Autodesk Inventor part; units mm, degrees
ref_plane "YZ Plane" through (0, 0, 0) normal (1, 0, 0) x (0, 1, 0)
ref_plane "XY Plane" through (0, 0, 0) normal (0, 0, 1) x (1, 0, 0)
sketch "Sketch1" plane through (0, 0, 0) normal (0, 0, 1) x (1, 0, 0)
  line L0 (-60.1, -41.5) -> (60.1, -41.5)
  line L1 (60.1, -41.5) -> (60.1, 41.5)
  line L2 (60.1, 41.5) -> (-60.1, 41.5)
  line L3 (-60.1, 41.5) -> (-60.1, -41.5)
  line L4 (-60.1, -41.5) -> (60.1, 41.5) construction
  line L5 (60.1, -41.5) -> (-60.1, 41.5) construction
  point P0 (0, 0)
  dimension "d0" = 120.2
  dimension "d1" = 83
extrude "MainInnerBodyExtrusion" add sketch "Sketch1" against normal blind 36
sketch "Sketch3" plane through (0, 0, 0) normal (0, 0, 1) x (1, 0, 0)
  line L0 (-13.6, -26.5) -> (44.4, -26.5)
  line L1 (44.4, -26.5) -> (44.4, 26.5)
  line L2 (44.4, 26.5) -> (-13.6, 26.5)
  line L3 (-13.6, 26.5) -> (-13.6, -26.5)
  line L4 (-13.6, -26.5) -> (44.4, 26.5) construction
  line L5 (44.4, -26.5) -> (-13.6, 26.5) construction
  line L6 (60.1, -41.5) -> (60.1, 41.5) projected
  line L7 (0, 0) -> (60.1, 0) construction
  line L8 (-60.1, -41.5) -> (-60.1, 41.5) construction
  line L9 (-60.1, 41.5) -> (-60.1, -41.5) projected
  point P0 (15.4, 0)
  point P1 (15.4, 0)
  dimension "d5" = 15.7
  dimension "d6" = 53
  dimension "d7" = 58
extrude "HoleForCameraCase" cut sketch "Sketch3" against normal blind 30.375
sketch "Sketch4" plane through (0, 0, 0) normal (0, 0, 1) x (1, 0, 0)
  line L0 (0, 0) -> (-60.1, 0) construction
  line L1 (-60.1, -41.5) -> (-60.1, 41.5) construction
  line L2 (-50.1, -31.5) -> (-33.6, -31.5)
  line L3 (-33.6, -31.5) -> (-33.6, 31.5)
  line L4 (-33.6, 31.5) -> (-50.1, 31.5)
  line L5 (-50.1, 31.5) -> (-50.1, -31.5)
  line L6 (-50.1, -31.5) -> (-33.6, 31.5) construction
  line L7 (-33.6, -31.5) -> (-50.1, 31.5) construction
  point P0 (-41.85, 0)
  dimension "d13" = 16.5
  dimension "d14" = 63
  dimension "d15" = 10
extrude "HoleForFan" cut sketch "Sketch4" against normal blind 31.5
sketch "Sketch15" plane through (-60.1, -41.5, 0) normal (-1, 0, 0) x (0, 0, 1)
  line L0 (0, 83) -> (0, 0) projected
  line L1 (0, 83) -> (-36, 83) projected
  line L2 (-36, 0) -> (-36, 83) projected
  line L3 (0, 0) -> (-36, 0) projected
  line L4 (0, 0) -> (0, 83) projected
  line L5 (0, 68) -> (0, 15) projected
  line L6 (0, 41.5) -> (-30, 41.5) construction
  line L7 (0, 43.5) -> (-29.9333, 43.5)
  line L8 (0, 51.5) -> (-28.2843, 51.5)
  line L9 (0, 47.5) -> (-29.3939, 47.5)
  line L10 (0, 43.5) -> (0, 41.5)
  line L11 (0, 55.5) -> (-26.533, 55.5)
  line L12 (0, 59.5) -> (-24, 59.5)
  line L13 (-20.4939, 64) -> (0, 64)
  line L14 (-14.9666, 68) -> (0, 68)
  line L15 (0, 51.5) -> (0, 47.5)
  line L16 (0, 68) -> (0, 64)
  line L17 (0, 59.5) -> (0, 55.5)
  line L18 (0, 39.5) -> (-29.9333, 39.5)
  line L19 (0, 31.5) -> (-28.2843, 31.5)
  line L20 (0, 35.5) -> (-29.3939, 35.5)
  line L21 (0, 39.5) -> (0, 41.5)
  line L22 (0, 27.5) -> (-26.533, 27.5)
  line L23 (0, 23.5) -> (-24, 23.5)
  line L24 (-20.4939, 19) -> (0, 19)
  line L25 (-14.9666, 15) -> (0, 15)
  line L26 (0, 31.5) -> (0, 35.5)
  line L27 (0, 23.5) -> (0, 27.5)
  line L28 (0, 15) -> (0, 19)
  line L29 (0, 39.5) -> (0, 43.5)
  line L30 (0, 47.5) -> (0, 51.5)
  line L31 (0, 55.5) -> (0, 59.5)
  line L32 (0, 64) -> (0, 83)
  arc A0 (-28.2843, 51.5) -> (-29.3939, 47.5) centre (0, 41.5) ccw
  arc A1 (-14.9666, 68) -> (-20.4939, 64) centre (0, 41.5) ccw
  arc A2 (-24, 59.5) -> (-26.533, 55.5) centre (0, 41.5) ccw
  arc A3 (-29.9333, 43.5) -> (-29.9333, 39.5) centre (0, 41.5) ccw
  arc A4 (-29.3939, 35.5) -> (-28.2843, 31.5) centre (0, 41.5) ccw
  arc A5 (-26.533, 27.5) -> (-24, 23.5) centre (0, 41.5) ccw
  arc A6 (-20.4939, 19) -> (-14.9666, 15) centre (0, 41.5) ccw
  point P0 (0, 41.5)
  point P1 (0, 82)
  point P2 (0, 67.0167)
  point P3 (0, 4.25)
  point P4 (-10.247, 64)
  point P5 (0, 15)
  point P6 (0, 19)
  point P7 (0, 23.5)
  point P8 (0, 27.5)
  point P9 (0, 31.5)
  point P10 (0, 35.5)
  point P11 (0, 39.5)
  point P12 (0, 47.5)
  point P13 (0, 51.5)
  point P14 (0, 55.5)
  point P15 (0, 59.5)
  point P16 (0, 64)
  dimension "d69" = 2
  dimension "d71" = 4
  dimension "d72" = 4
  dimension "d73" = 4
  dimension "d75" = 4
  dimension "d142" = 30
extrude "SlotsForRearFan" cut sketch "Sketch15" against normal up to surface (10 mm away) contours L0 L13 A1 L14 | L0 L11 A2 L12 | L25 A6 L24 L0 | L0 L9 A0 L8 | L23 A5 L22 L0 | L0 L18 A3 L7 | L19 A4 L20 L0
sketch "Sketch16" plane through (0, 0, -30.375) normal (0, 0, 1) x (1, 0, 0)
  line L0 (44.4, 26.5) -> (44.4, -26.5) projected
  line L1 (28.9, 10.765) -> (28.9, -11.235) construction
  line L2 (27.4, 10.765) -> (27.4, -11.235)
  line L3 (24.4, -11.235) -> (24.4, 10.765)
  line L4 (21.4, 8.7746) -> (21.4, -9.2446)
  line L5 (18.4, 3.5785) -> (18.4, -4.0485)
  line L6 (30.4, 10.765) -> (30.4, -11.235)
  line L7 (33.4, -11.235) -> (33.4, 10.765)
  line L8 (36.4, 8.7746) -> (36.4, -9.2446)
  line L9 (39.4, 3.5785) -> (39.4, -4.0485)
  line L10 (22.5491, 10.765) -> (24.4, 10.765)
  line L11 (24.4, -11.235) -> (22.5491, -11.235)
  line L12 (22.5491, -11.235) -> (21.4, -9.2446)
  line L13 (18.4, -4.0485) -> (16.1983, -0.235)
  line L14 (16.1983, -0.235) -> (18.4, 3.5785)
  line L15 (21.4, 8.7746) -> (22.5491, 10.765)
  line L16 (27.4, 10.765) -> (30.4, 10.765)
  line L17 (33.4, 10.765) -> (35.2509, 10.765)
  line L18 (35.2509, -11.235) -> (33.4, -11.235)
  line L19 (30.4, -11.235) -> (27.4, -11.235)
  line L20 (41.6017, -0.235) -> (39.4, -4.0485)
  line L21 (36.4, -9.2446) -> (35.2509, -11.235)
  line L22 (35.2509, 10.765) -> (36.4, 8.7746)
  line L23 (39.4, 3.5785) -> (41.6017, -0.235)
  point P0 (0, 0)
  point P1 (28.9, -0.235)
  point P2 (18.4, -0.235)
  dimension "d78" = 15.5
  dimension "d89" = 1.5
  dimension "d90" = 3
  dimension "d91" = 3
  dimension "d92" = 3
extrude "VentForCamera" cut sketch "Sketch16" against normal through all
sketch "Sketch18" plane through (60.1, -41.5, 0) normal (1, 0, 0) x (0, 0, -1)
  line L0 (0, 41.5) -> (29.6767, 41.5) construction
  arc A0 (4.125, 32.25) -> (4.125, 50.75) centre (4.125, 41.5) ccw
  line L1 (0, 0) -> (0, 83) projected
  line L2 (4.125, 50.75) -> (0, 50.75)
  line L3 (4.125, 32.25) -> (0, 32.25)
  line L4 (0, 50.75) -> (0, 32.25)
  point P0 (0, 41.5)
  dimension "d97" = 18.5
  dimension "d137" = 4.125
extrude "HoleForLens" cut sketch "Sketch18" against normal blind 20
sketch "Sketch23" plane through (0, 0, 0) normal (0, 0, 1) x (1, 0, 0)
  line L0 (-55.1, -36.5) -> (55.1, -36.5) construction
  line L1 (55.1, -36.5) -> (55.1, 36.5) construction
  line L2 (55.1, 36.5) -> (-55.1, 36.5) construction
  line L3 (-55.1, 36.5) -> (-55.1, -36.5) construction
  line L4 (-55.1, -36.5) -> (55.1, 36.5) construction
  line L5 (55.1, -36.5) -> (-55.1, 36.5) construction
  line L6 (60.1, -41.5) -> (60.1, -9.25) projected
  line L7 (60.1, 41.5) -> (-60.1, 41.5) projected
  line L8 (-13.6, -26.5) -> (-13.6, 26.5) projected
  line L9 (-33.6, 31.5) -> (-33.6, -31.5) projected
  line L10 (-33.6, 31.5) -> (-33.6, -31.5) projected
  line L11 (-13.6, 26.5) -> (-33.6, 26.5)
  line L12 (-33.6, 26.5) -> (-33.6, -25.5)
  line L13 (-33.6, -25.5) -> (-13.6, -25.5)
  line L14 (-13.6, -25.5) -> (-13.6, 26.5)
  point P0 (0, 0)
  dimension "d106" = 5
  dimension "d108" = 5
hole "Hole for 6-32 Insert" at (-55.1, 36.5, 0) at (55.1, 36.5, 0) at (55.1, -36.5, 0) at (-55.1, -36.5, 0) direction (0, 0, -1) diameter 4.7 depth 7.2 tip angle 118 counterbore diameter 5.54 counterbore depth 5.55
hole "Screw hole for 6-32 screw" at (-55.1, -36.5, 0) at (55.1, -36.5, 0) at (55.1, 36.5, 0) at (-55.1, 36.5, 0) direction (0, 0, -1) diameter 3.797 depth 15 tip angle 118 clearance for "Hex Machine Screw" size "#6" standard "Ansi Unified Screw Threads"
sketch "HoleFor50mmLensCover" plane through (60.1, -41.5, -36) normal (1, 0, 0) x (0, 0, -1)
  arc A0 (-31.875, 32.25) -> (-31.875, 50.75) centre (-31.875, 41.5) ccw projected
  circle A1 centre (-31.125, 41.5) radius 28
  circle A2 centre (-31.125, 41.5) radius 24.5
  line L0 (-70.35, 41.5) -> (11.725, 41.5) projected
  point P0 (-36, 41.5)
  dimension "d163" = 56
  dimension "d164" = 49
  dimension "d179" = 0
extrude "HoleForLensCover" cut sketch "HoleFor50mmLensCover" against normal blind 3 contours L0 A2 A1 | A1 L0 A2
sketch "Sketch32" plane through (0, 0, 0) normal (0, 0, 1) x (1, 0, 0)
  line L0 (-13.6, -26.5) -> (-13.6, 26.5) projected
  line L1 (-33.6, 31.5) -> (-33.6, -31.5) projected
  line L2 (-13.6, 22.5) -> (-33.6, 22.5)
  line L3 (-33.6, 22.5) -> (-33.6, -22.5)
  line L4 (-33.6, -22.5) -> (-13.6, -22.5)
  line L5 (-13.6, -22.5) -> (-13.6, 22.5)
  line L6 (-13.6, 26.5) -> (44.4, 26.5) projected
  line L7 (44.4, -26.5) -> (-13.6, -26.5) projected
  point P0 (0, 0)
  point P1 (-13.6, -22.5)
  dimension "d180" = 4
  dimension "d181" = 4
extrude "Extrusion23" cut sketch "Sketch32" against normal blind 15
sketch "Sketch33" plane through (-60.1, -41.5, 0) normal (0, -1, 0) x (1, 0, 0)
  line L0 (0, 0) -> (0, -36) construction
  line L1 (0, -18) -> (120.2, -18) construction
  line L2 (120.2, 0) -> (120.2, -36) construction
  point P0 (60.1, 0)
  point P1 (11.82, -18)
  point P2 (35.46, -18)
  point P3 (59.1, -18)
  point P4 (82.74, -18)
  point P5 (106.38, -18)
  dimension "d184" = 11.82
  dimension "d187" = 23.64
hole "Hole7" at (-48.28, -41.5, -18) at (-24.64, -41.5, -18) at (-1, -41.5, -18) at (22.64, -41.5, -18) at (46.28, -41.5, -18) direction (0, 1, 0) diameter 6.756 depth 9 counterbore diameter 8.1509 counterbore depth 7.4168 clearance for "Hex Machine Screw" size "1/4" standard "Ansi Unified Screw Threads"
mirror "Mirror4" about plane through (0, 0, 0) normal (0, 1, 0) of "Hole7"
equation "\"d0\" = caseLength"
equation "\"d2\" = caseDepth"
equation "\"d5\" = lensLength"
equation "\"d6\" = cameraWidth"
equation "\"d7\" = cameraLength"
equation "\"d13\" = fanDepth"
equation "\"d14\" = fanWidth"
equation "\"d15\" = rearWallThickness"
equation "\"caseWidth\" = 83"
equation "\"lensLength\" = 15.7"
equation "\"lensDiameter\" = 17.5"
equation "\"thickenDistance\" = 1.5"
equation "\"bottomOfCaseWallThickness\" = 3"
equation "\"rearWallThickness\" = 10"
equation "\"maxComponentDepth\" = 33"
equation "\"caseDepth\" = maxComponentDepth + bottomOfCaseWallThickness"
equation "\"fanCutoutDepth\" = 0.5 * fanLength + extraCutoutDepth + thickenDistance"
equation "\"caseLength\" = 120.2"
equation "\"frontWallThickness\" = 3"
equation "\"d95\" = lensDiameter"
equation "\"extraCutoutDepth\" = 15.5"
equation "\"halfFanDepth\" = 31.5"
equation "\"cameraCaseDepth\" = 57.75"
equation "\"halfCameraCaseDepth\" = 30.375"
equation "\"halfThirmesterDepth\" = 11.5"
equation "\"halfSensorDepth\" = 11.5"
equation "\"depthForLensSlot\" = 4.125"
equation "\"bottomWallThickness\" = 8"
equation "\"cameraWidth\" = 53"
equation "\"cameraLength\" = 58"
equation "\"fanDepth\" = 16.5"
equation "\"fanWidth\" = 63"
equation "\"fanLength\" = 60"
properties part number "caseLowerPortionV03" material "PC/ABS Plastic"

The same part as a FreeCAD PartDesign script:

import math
import FreeCAD as App
import Part
import Sketcher

V = App.Vector
Q = App.Units.Quantity

doc = App.newDocument("Part")
body = doc.addObject("PartDesign::Body", "Body")

# Sketch on XY plane
sketch1 = body.newObject("Sketcher::SketchObject", "Sketch")
sketch1.AttachmentSupport = (doc.getObject("XY_Plane"), [""])
sketch1.MapMode = "FlatFace"
sketch1.addGeometry(Part.LineSegment(V(-60.1, 41.5, 0), V(-60.1, -41.5, 0)), False)
sketch1.addGeometry(Part.LineSegment(V(-60.1, -41.5, 0), V(60.1, -41.5, 0)), False)
sketch1.addGeometry(Part.LineSegment(V(60.1, -41.5, 0), V(60.1, 41.5, 0)), False)
sketch1.addGeometry(Part.LineSegment(V(60.1, 41.5, 0), V(-60.1, 41.5, 0)), False)
sketch1.addConstraint(Sketcher.Constraint("Coincident", 0, 2, 1, 1))
sketch1.addConstraint(Sketcher.Constraint("Coincident", 1, 2, 2, 1))
sketch1.addConstraint(Sketcher.Constraint("Coincident", 2, 2, 3, 1))
sketch1.addConstraint(Sketcher.Constraint("Coincident", 3, 2, 0, 1))
sketch1.addConstraint(Sketcher.Constraint("Vertical", 0))
sketch1.addConstraint(Sketcher.Constraint("Horizontal", 1))
sketch1.addConstraint(Sketcher.Constraint("Vertical", 2))
sketch1.addConstraint(Sketcher.Constraint("Horizontal", 3))
sketch1.addConstraint(Sketcher.Constraint("Symmetric", 0, 2, 2, 2, -1, 1))
sketch1.addConstraint(Sketcher.Constraint("DistanceY", 0, 2, 0, 1, Q("83 mm")))
sketch1.addConstraint(Sketcher.Constraint("DistanceX", 1, 1, 1, 2, Q("120.2 mm")))
pad1 = body.newObject("PartDesign::Pad", "Pad")
pad1.Profile = sketch1
pad1.Length = 36
pad1.Reversed = True

# Sketch on XY plane
sketch2 = body.newObject("Sketcher::SketchObject", "Sketch001")
sketch2.AttachmentSupport = (doc.getObject("XY_Plane"), [""])
sketch2.MapMode = "FlatFace"
sketch2.addGeometry(Part.LineSegment(V(-13.6, 26.5, 0), V(-13.6, -26.5, 0)), False)
sketch2.addGeometry(Part.LineSegment(V(-13.6, -26.5, 0), V(44.4, -26.5, 0)), False)
sketch2.addGeometry(Part.LineSegment(V(44.4, -26.5, 0), V(44.4, 26.5, 0)), False)
sketch2.addGeometry(Part.LineSegment(V(44.4, 26.5, 0), V(-13.6, 26.5, 0)), False)
sketch2.addConstraint(Sketcher.Constraint("Coincident", 0, 2, 1, 1))
sketch2.addConstraint(Sketcher.Constraint("Coincident", 1, 2, 2, 1))
sketch2.addConstraint(Sketcher.Constraint("Coincident", 2, 2, 3, 1))
sketch2.addConstraint(Sketcher.Constraint("Coincident", 3, 2, 0, 1))
sketch2.addConstraint(Sketcher.Constraint("Vertical", 0))
sketch2.addConstraint(Sketcher.Constraint("Horizontal", 1))
sketch2.addConstraint(Sketcher.Constraint("Vertical", 2))
sketch2.addConstraint(Sketcher.Constraint("Horizontal", 3))
sketch2.addConstraint(Sketcher.Constraint("DistanceX", 1, 1, 1, 2, Q("58 mm")))
sketch2.addConstraint(Sketcher.Constraint("DistanceY", 0, 2, 0, 1, Q("53 mm")))
sketch2.addConstraint(Sketcher.Constraint("DistanceX", 0, 2, -1, 1, Q("13.6 mm")))
sketch2.addConstraint(Sketcher.Constraint("DistanceY", 0, 2, -1, 1, Q("26.5 mm")))
pocket1 = body.newObject("PartDesign::Pocket", "Pocket")
pocket1.Profile = sketch2
pocket1.Length = 30.375

# Sketch on XY plane
sketch3 = body.newObject("Sketcher::SketchObject", "Sketch002")
sketch3.AttachmentSupport = (doc.getObject("XY_Plane"), [""])
sketch3.MapMode = "FlatFace"
sketch3.addGeometry(Part.LineSegment(V(-50.1, 31.5, 0), V(-50.1, -31.5, 0)), False)
sketch3.addGeometry(Part.LineSegment(V(-50.1, -31.5, 0), V(-33.6, -31.5, 0)), False)
sketch3.addGeometry(Part.LineSegment(V(-33.6, -31.5, 0), V(-33.6, 31.5, 0)), False)
sketch3.addGeometry(Part.LineSegment(V(-33.6, 31.5, 0), V(-50.1, 31.5, 0)), False)
sketch3.addConstraint(Sketcher.Constraint("Coincident", 0, 2, 1, 1))
sketch3.addConstraint(Sketcher.Constraint("Coincident", 1, 2, 2, 1))
sketch3.addConstraint(Sketcher.Constraint("Coincident", 2, 2, 3, 1))
sketch3.addConstraint(Sketcher.Constraint("Coincident", 3, 2, 0, 1))
sketch3.addConstraint(Sketcher.Constraint("Vertical", 0))
sketch3.addConstraint(Sketcher.Constraint("Horizontal", 1))
sketch3.addConstraint(Sketcher.Constraint("Vertical", 2))
sketch3.addConstraint(Sketcher.Constraint("Horizontal", 3))
sketch3.addConstraint(Sketcher.Constraint("DistanceY", 0, 2, 0, 1, Q("63 mm")))
sketch3.addConstraint(Sketcher.Constraint("DistanceX", 1, 1, 1, 2, Q("16.5 mm")))
sketch3.addConstraint(Sketcher.Constraint("DistanceX", 0, 2, -1, 1, Q("50.1 mm")))
sketch3.addConstraint(Sketcher.Constraint("DistanceY", 0, 2, -1, 1, Q("31.5 mm")))
pocket2 = body.newObject("PartDesign::Pocket", "Pocket001")
pocket2.Profile = sketch3
pocket2.Length = 31.5

# Sketch on YZ plane
sketch4 = body.newObject("Sketcher::SketchObject", "Sketch003")
sketch4.AttachmentSupport = (doc.getObject("YZ_Plane"), [""])
sketch4.MapMode = "FlatFace"
sketch4.AttachmentOffset = App.Placement(V(0, 0, -60.1), App.Rotation())
sketch4.addGeometry(Part.LineSegment(V(22.5, 0, 0), V(26.5, 0, 0)), False)
sketch4.addGeometry(Part.LineSegment(V(26.5, 0, 0), V(26.5, -14.9666, 0)), False)
sketch4.addGeometry(Part.ArcOfCircle(Part.Circle(V(-0.000903, 0.000579, 0), V(0, 0, 1), 30.435412), math.radians(-42.328172), math.radians(-29.456891)), False)
sketch4.addGeometry(Part.LineSegment(V(22.5, -20.4939, 0), V(22.5, 0, 0)), False)
sketch4.addGeometry(Part.LineSegment(V(14, 0, 0), V(18, 0, 0)), False)
sketch4.addGeometry(Part.LineSegment(V(18, 0, 0), V(18, -24, 0)), False)
sketch4.addGeometry(Part.ArcOfCircle(Part.Circle(V(0, 0, 0), V(0, 0, 1), 30.000041), math.radians(-62.181862), math.radians(-53.130102)), False)
sketch4.addGeometry(Part.LineSegment(V(14, -26.533, 0), V(14, 0, 0)), False)
sketch4.addGeometry(Part.LineSegment(V(-26.5, -14.9666, 0), V(-26.5, 0, 0)), False)
sketch4.addGeometry(Part.LineSegment(V(-26.5, 0, 0), V(-22.5, 0, 0)), False)
sketch4.addGeometry(Part.LineSegment(V(-22.5, 0, 0), V(-22.5, -20.4939, 0)), False)
sketch4.addGeometry(Part.ArcOfCircle(Part.Circle(V(-0.000832, -0.000677, 0), V(0, 0, 1), 30.433284), math.radians(-150.543561), math.radians(-137.671376)), False)
sketch4.addGeometry(Part.LineSegment(V(6, 0, 0), V(10, 0, 0)), False)
sketch4.addGeometry(Part.LineSegment(V(10, 0, 0), V(10, -28.2843, 0)), False)
sketch4.addGeometry(Part.ArcOfCircle(Part.Circle(V(0, 0, 0), V(0, 0, 1), 30), math.radians(-78.46305), math.radians(-70.528798)), False)
sketch4.addGeometry(Part.LineSegment(V(6, -29.3939, 0), V(6, 0, 0)), False)
sketch4.addGeometry(Part.LineSegment(V(-18, -24, 0), V(-18, 0, 0)), False)
sketch4.addGeometry(Part.LineSegment(V(-18, 0, 0), V(-14, 0, 0)), False)
sketch4.addGeometry(Part.LineSegment(V(-14, 0, 0), V(-14, -26.533, 0)), False)
sketch4.addGeometry(Part.ArcOfCircle(Part.Circle(V(0, 0, 0), V(0, 0, 1), 30), math.radians(-126.869898), math.radians(-117.818138)), False)
sketch4.addGeometry(Part.LineSegment(V(-2, 0, 0), V(2, 0, 0)), False)
sketch4.addGeometry(Part.LineSegment(V(2, 0, 0), V(2, -29.9333, 0)), False)
sketch4.addGeometry(Part.ArcOfCircle(Part.Circle(V(0, 0, 0), V(0, 0, 1), 30.000041), math.radians(-93.822549), math.radians(-86.177451)), False)
sketch4.addGeometry(Part.LineSegment(V(-2, -29.9333, 0), V(-2, 0, 0)), False)
sketch4.addGeometry(Part.LineSegment(V(-10, -28.2843, 0), V(-10, 0, 0)), False)
sketch4.addGeometry(Part.LineSegment(V(-10, 0, 0), V(-6, 0, 0)), False)
sketch4.addGeometry(Part.LineSegment(V(-6, 0, 0), V(-6, -29.3939, 0)), False)
sketch4.addGeometry(Part.ArcOfCircle(Part.Circle(V(0, 0, 0), V(0, 0, 1), 30.000041), math.radians(-109.471202), math.radians(-101.53695)), False)
sketch4.addConstraint(Sketcher.Constraint("Coincident", 0, 2, 1, 1))
sketch4.addConstraint(Sketcher.Constraint("Coincident", 1, 2, 2, 2))
sketch4.addConstraint(Sketcher.Constraint("Coincident", 2, 1, 3, 1))
sketch4.addConstraint(Sketcher.Constraint("Coincident", 3, 2, 0, 1))
sketch4.addConstraint(Sketcher.Constraint("Coincident", 4, 2, 5, 1))
sketch4.addConstraint(Sketcher.Constraint("Coincident", 5, 2, 6, 2))
sketch4.addConstraint(Sketcher.Constraint("Coincident", 6, 1, 7, 1))
sketch4.addConstraint(Sketcher.Constraint("Coincident", 7, 2, 4, 1))
sketch4.addConstraint(Sketcher.Constraint("Coincident", 8, 2, 9, 1))
sketch4.addConstraint(Sketcher.Constraint("Coincident", 9, 2, 10, 1))
sketch4.addConstraint(Sketcher.Constraint("Coincident", 10, 2, 11, 2))
sketch4.addConstraint(Sketcher.Constraint("Coincident", 11, 1, 8, 1))
sketch4.addConstraint(Sketcher.Constraint("Coincident", 12, 2, 13, 1))
sketch4.addConstraint(Sketcher.Constraint("Coincident", 13, 2, 14, 2))
sketch4.addConstraint(Sketcher.Constraint("Coincident", 14, 1, 15, 1))
sketch4.addConstraint(Sketcher.Constraint("Coincident", 15, 2, 12, 1))
sketch4.addConstraint(Sketcher.Constraint("Coincident", 16, 2, 17, 1))
sketch4.addConstraint(Sketcher.Constraint("Coincident", 17, 2, 18, 1))
sketch4.addConstraint(Sketcher.Constraint("Coincident", 18, 2, 19, 2))
sketch4.addConstraint(Sketcher.Constraint("Coincident", 19, 1, 16, 1))
sketch4.addConstraint(Sketcher.Constraint("Coincident", 20, 2, 21, 1))
sketch4.addConstraint(Sketcher.Constraint("Coincident", 21, 2, 22, 2))
sketch4.addConstraint(Sketcher.Constraint("Coincident", 22, 1, 23, 1))
sketch4.addConstraint(Sketcher.Constraint("Coincident", 23, 2, 20, 1))
sketch4.addConstraint(Sketcher.Constraint("Coincident", 24, 2, 25, 1))
sketch4.addConstraint(Sketcher.Constraint("Coincident", 25, 2, 26, 1))
sketch4.addConstraint(Sketcher.Constraint("Coincident", 26, 2, 27, 2))
sketch4.addConstraint(Sketcher.Constraint("Coincident", 27, 1, 24, 1))
sketch4.addConstraint(Sketcher.Constraint("Horizontal", 0))
sketch4.addConstraint(Sketcher.Constraint("Vertical", 1))
sketch4.addConstraint(Sketcher.Constraint("Vertical", 3))
sketch4.addConstraint(Sketcher.Constraint("Horizontal", 4))
sketch4.addConstraint(Sketcher.Constraint("Vertical", 5))
sketch4.addConstraint(Sketcher.Constraint("Vertical", 7))
sketch4.addConstraint(Sketcher.Constraint("Vertical", 8))
sketch4.addConstraint(Sketcher.Constraint("Horizontal", 9))
sketch4.addConstraint(Sketcher.Constraint("Vertical", 10))
sketch4.addConstraint(Sketcher.Constraint("Horizontal", 12))
sketch4.addConstraint(Sketcher.Constraint("Vertical", 13))
sketch4.addConstraint(Sketcher.Constraint("Vertical", 15))
sketch4.addConstraint(Sketcher.Constraint("Vertical", 16))
sketch4.addConstraint(Sketcher.Constraint("Horizontal", 17))
sketch4.addConstraint(Sketcher.Constraint("Vertical", 18))
sketch4.addConstraint(Sketcher.Constraint("Horizontal", 20))
sketch4.addConstraint(Sketcher.Constraint("Vertical", 21))
sketch4.addConstraint(Sketcher.Constraint("Vertical", 23))
sketch4.addConstraint(Sketcher.Constraint("Vertical", 24))
sketch4.addConstraint(Sketcher.Constraint("Horizontal", 25))
sketch4.addConstraint(Sketcher.Constraint("Vertical", 26))
sketch4.addConstraint(Sketcher.Constraint("Coincident", 6, 3, -1, 1))
sketch4.addConstraint(Sketcher.Constraint("Coincident", 14, 3, -1, 1))
sketch4.addConstraint(Sketcher.Constraint("Coincident", 19, 3, -1, 1))
sketch4.addConstraint(Sketcher.Constraint("Coincident", 22, 3, -1, 1))
sketch4.addConstraint(Sketcher.Constraint("Coincident", 27, 3, -1, 1))
sketch4.addConstraint(Sketcher.Constraint("Equal", 6, 14))
sketch4.addConstraint(Sketcher.Constraint("Equal", 14, 19))
sketch4.addConstraint(Sketcher.Constraint("Equal", 19, 22))
sketch4.addConstraint(Sketcher.Constraint("Equal", 22, 27))
sketch4.addConstraint(Sketcher.Constraint("Symmetric", 0, 2, 8, 2, -1, 1))
sketch4.addConstraint(Sketcher.Constraint("Symmetric", 4, 2, 16, 2, -1, 1))
sketch4.addConstraint(Sketcher.Constraint("Symmetric", 20, 2, 23, 2, -1, 1))
sketch4.addConstraint(Sketcher.Constraint("Symmetric", 12, 2, 24, 2, -1, 1))
sketch4.addConstraint(Sketcher.Constraint("Symmetric", 3, 2, 9, 2, -2))
sketch4.addConstraint(Sketcher.Constraint("Symmetric", 7, 2, 17, 2, -2))
sketch4.addConstraint(Sketcher.Constraint("Symmetric", 15, 2, 25, 2, -2))
sketch4.addConstraint(Sketcher.Constraint("Symmetric", 2, 3, 11, 3, -1))
sketch4.addConstraint(Sketcher.Constraint("Horizontal", 2, 1, 10, 2))
sketch4.addConstraint(Sketcher.Constraint("Horizontal", 1, 2, 11, 1))
sketch4.addConstraint(Sketcher.Constraint("Equal", 0, 4))
sketch4.addConstraint(Sketcher.Constraint("Equal", 9, 12))
sketch4.addConstraint(Sketcher.Constraint("Equal", 17, 20))
sketch4.addConstraint(Sketcher.Constraint("Radius", 6, Q("30 mm")))
sketch4.addConstraint(Sketcher.Constraint("DistanceX", 0, 1, 0, 2, Q("4 mm")))
sketch4.addConstraint(Sketcher.Constraint("DistanceX", 12, 2, 7, 2, Q("4 mm")))
sketch4.addConstraint(Sketcher.Constraint("DistanceX", 21, 2, 14, 1, Q("4 mm")))
sketch4.addConstraint(Sketcher.Constraint("DistanceX", -1, 1, 0, 2, Q("26.5 mm")))
sketch4.addConstraint(Sketcher.Constraint("Radius", 2, Q("30.4354 mm")))
sketch4.addConstraint(Sketcher.Constraint("Radius", 11, Q("30.4333 mm")))
pocket3 = body.newObject("PartDesign::Pocket", "Pocket002")
pocket3.Profile = sketch4
pocket3.Length = 10
pocket3.Reversed = True

# Sketch on XY plane
sketch5 = body.newObject("Sketcher::SketchObject", "Sketch004")
sketch5.AttachmentSupport = (doc.getObject("XY_Plane"), [""])
sketch5.MapMode = "FlatFace"
sketch5.AttachmentOffset = App.Placement(V(0, 0, -30.375), App.Rotation())
sketch5.addGeometry(Part.LineSegment(V(30.4, 10.765, 0), V(27.4, 10.765, 0)), False)
sketch5.addGeometry(Part.LineSegment(V(27.4, 10.765, 0), V(27.4, -11.235, 0)), False)
sketch5.addGeometry(Part.LineSegment(V(27.4, -11.235, 0), V(30.4, -11.235, 0)), False)
sketch5.addGeometry(Part.LineSegment(V(30.4, -11.235, 0), V(30.4, 10.765, 0)), False)
sketch5.addGeometry(Part.LineSegment(V(22.5491, -11.235, 0), V(24.4, -11.235, 0)), False)
sketch5.addGeometry(Part.LineSegment(V(24.4, -11.235, 0), V(24.4, 10.765, 0)), False)
sketch5.addGeometry(Part.LineSegment(V(24.4, 10.765, 0), V(22.5491, 10.765, 0)), False)
sketch5.addGeometry(Part.LineSegment(V(22.5491, 10.765, 0), V(21.4, 8.7746, 0)), False)
sketch5.addGeometry(Part.LineSegment(V(21.4, 8.7746, 0), V(21.4, -9.2446, 0)), False)
sketch5.addGeometry(Part.LineSegment(V(21.4, -9.2446, 0), V(22.5491, -11.235, 0)), False)
sketch5.addGeometry(Part.LineSegment(V(18.4, -4.0485, 0), V(18.4, 3.5785, 0)), False)
sketch5.addGeometry(Part.LineSegment(V(18.4, 3.5785, 0), V(16.1983, -0.235, 0)), False)
sketch5.addGeometry(Part.LineSegment(V(16.1983, -0.235, 0), V(18.4, -4.0485, 0)), False)
sketch5.addGeometry(Part.LineSegment(V(33.4, 10.765, 0), V(33.4, -11.235, 0)), False)
sketch5.addGeometry(Part.LineSegment(V(33.4, -11.235, 0), V(35.2509, -11.235, 0)), False)
sketch5.addGeometry(Part.LineSegment(V(35.2509, -11.235, 0), V(36.4, -9.2446, 0)), False)
sketch5.addGeometry(Part.LineSegment(V(36.4, -9.2446, 0), V(36.4, 8.7746, 0)), False)
sketch5.addGeometry(Part.LineSegment(V(36.4, 8.7746, 0), V(35.2509, 10.765, 0)), False)
sketch5.addGeometry(Part.LineSegment(V(35.2509, 10.765, 0), V(33.4, 10.765, 0)), False)
sketch5.addGeometry(Part.LineSegment(V(41.6017, -0.235, 0), V(39.4, 3.5785, 0)), False)
sketch5.addGeometry(Part.LineSegment(V(39.4, 3.5785, 0), V(39.4, -4.0485, 0)), False)
sketch5.addGeometry(Part.LineSegment(V(39.4, -4.0485, 0), V(41.6017, -0.235, 0)), False)
sketch5.addConstraint(Sketcher.Constraint("Coincident", 0, 2, 1, 1))
sketch5.addConstraint(Sketcher.Constraint("Coincident", 1, 2, 2, 1))
sketch5.addConstraint(Sketcher.Constraint("Coincident", 2, 2, 3, 1))
sketch5.addConstraint(Sketcher.Constraint("Coincident", 3, 2, 0, 1))
sketch5.addConstraint(Sketcher.Constraint("Coincident", 4, 2, 5, 1))
sketch5.addConstraint(Sketcher.Constraint("Coincident", 5, 2, 6, 1))
sketch5.addConstraint(Sketcher.Constraint("Coincident", 6, 2, 7, 1))
sketch5.addConstraint(Sketcher.Constraint("Coincident", 7, 2, 8, 1))
sketch5.addConstraint(Sketcher.Constraint("Coincident", 8, 2, 9, 1))
sketch5.addConstraint(Sketcher.Constraint("Coincident", 9, 2, 4, 1))
sketch5.addConstraint(Sketcher.Constraint("Coincident", 10, 2, 11, 1))
sketch5.addConstraint(Sketcher.Constraint("Coincident", 11, 2, 12, 1))
sketch5.addConstraint(Sketcher.Constraint("Coincident", 12, 2, 10, 1))
sketch5.addConstraint(Sketcher.Constraint("Coincident", 13, 2, 14, 1))
sketch5.addConstraint(Sketcher.Constraint("Coincident", 14, 2, 15, 1))
sketch5.addConstraint(Sketcher.Constraint("Coincident", 15, 2, 16, 1))
sketch5.addConstraint(Sketcher.Constraint("Coincident", 16, 2, 17, 1))
sketch5.addConstraint(Sketcher.Constraint("Coincident", 17, 2, 18, 1))
sketch5.addConstraint(Sketcher.Constraint("Coincident", 18, 2, 13, 1))
sketch5.addConstraint(Sketcher.Constraint("Coincident", 19, 2, 20, 1))
sketch5.addConstraint(Sketcher.Constraint("Coincident", 20, 2, 21, 1))
sketch5.addConstraint(Sketcher.Constraint("Coincident", 21, 2, 19, 1))
sketch5.addConstraint(Sketcher.Constraint("Horizontal", 0))
sketch5.addConstraint(Sketcher.Constraint("Vertical", 1))
sketch5.addConstraint(Sketcher.Constraint("Horizontal", 2))
sketch5.addConstraint(Sketcher.Constraint("Vertical", 3))
sketch5.addConstraint(Sketcher.Constraint("Horizontal", 4))
sketch5.addConstraint(Sketcher.Constraint("Vertical", 5))
sketch5.addConstraint(Sketcher.Constraint("Horizontal", 6))
sketch5.addConstraint(Sketcher.Constraint("Vertical", 8))
sketch5.addConstraint(Sketcher.Constraint("Vertical", 10))
sketch5.addConstraint(Sketcher.Constraint("Vertical", 13))
sketch5.addConstraint(Sketcher.Constraint("Horizontal", 14))
sketch5.addConstraint(Sketcher.Constraint("Vertical", 16))
sketch5.addConstraint(Sketcher.Constraint("Horizontal", 18))
sketch5.addConstraint(Sketcher.Constraint("Vertical", 20))
sketch5.addConstraint(Sketcher.Constraint("Parallel", 7, 11))
sketch5.addConstraint(Sketcher.Constraint("Parallel", 9, 12))
sketch5.addConstraint(Sketcher.Constraint("Parallel", 11, 15))
sketch5.addConstraint(Sketcher.Constraint("Parallel", 12, 17))
sketch5.addConstraint(Sketcher.Constraint("Parallel", 17, 19))
sketch5.addConstraint(Sketcher.Constraint("Parallel", 15, 21))
sketch5.addConstraint(Sketcher.Constraint("Horizontal", 2, 2, 4, 2))
sketch5.addConstraint(Sketcher.Constraint("Horizontal", 3, 2, 5, 2))
sketch5.addConstraint(Sketcher.Constraint("Horizontal", 9, 2, 13, 2))
sketch5.addConstraint(Sketcher.Constraint("Horizontal", 8, 2, 15, 2))
sketch5.addConstraint(Sketcher.Constraint("Horizontal", 7, 2, 16, 2))
sketch5.addConstraint(Sketcher.Constraint("Horizontal", 6, 2, 17, 2))
sketch5.addConstraint(Sketcher.Constraint("Horizontal", 10, 2, 19, 2))
sketch5.addConstraint(Sketcher.Constraint("Horizontal", 12, 2, 20, 2))
sketch5.addConstraint(Sketcher.Constraint("Horizontal", 11, 2, 21, 2))
sketch5.addConstraint(Sketcher.Constraint("Vertical", 6, 2, 9, 2))
sketch5.addConstraint(Sketcher.Constraint("Equal", 6, 14))
sketch5.addConstraint(Sketcher.Constraint("DistanceX", 0, 2, 0, 1, Q("3 mm")))
sketch5.addConstraint(Sketcher.Constraint("DistanceX", 4, 2, 1, 2, Q("3 mm")))
sketch5.addConstraint(Sketcher.Constraint("DistanceX", 7, 2, 5, 2, Q("3 mm")))
sketch5.addConstraint(Sketcher.Constraint("DistanceX", 10, 2, 7, 2, Q("3 mm")))
sketch5.addConstraint(Sketcher.Constraint("DistanceX", 2, 2, 13, 2, Q("3 mm")))
sketch5.addConstraint(Sketcher.Constraint("DistanceX", 16, 2, 19, 2, Q("3 mm")))
sketch5.addConstraint(Sketcher.Constraint("DistanceY", 1, 2, 1, 1, Q("22 mm")))
sketch5.addConstraint(Sketcher.Constraint("Angle", 11, Q("-119.9997 deg")))
sketch5.addConstraint(Sketcher.Constraint("DistanceY", 11, 2, 6, 2, Q("11 mm")))
sketch5.addConstraint(Sketcher.Constraint("DistanceX", -1, 1, 0, 2, Q("27.4 mm")))
sketch5.addConstraint(Sketcher.Constraint("DistanceX", 4, 1, 4, 2, Q("1.851 mm")))
sketch5.addConstraint(Sketcher.Constraint("DistanceY", 10, 1, 10, 2, Q("7.627 mm")))
sketch5.addConstraint(Sketcher.Constraint("DistanceY", -1, 1, 0, 2, Q("10.765 mm")))
pocket4 = body.newObject("PartDesign::Pocket", "Pocket003")
pocket4.Profile = sketch5
pocket4.Type = "ThroughAll"

# Sketch on YZ plane
sketch6 = body.newObject("Sketcher::SketchObject", "Sketch005")
sketch6.AttachmentSupport = (doc.getObject("YZ_Plane"), [""])
sketch6.MapMode = "FlatFace"
sketch6.AttachmentOffset = App.Placement(V(0, 0, 60.1), App.Rotation())
sketch6.addGeometry(Part.LineSegment(V(-9.25, 0, 0), V(-9.25, -4.125, 0)), False)
sketch6.addGeometry(Part.ArcOfCircle(Part.Circle(V(0, -4.125, 0), V(0, 0, 1), 9.25), math.radians(180), math.radians(360)), False)
sketch6.addGeometry(Part.LineSegment(V(9.25, -4.125, 0), V(9.25, 0, 0)), False)
sketch6.addGeometry(Part.LineSegment(V(9.25, 0, 0), V(-9.25, 0, 0)), False)
sketch6.addConstraint(Sketcher.Constraint("Tangent", 0, 2, 1, 1))
sketch6.addConstraint(Sketcher.Constraint("Tangent", 1, 2, 2, 1))
sketch6.addConstraint(Sketcher.Constraint("Coincident", 2, 2, 3, 1))
sketch6.addConstraint(Sketcher.Constraint("Coincident", 3, 2, 0, 1))
sketch6.addConstraint(Sketcher.Constraint("Vertical", 0))
sketch6.addConstraint(Sketcher.Constraint("Vertical", 2))
sketch6.addConstraint(Sketcher.Constraint("Horizontal", 3))
sketch6.addConstraint(Sketcher.Constraint("Symmetric", 2, 2, 3, 2, -1, 1))
sketch6.addConstraint(Sketcher.Constraint("Radius", 1, Q("9.25 mm")))
sketch6.addConstraint(Sketcher.Constraint("DistanceY", 0, 2, 0, 1, Q("4.125 mm")))
pocket5 = body.newObject("PartDesign::Pocket", "Pocket004")
pocket5.Profile = sketch6
pocket5.Length = 20

# Sketch on XY plane
sketch7 = body.newObject("Sketcher::SketchObject", "Sketch006")
sketch7.AttachmentSupport = (doc.getObject("XY_Plane"), [""])
sketch7.MapMode = "FlatFace"
sketch7.addGeometry(Part.Circle(V(-55.1, 36.5, 0), V(0, 0, 1), 2.35), False)
sketch7.addGeometry(Part.Circle(V(55.1, 36.5, 0), V(0, 0, 1), 2.35), False)
sketch7.addGeometry(Part.Circle(V(55.1, -36.5, 0), V(0, 0, 1), 2.35), False)
sketch7.addGeometry(Part.Circle(V(-55.1, -36.5, 0), V(0, 0, 1), 2.35), False)
sketch7.addConstraint(Sketcher.Constraint("Equal", 0, 1))
sketch7.addConstraint(Sketcher.Constraint("Equal", 1, 2))
sketch7.addConstraint(Sketcher.Constraint("Equal", 2, 3))
sketch7.addConstraint(Sketcher.Constraint("Symmetric", 0, 3, 2, 3, -1, 1))
sketch7.addConstraint(Sketcher.Constraint("Symmetric", 1, 3, 3, 3, -1, 1))
sketch7.addConstraint(Sketcher.Constraint("Symmetric", 0, 3, 1, 3, -2))
sketch7.addConstraint(Sketcher.Constraint("Diameter", 0, Q("4.7 mm")))
sketch7.addConstraint(Sketcher.Constraint("DistanceY", 2, 3, 1, 3, Q("73 mm")))
sketch7.addConstraint(Sketcher.Constraint("DistanceX", 0, 3, -1, 1, Q("55.1 mm")))
doc.recompute()
hole = body.newObject("PartDesign::Hole", "Hole")
hole.Profile = sketch7
hole.ThreadType = "None"
hole.Diameter = 4.7
hole.DepthType = "Dimension"
hole.Depth = 7.2
hole.DrillPoint = "Angled"
hole.DrillPointAngle = 118
hole.HoleCutType = "Counterbore"
hole.HoleCutDiameter = 5.54
hole.HoleCutDepth = 5.55

# Sketch on XY plane
sketch8 = body.newObject("Sketcher::SketchObject", "Sketch007")
sketch8.AttachmentSupport = (doc.getObject("XY_Plane"), [""])
sketch8.MapMode = "FlatFace"
sketch8.addGeometry(Part.Circle(V(-55.1, -36.5, 0), V(0, 0, 1), 1.8985), False)
sketch8.addGeometry(Part.Circle(V(55.1, -36.5, 0), V(0, 0, 1), 1.8985), False)
sketch8.addGeometry(Part.Circle(V(55.1, 36.5, 0), V(0, 0, 1), 1.8985), False)
sketch8.addGeometry(Part.Circle(V(-55.1, 36.5, 0), V(0, 0, 1), 1.8985), False)
sketch8.addConstraint(Sketcher.Constraint("Equal", 0, 1))
sketch8.addConstraint(Sketcher.Constraint("Equal", 1, 2))
sketch8.addConstraint(Sketcher.Constraint("Equal", 2, 3))
sketch8.addConstraint(Sketcher.Constraint("Symmetric", 0, 3, 2, 3, -1, 1))
sketch8.addConstraint(Sketcher.Constraint("Symmetric", 1, 3, 3, 3, -1, 1))
sketch8.addConstraint(Sketcher.Constraint("Symmetric", 0, 3, 1, 3, -2))
sketch8.addConstraint(Sketcher.Constraint("Diameter", 0, Q("3.797 mm")))
sketch8.addConstraint(Sketcher.Constraint("DistanceY", 1, 3, 2, 3, Q("73 mm")))
sketch8.addConstraint(Sketcher.Constraint("DistanceX", 0, 3, -1, 1, Q("55.1 mm")))
doc.recompute()
hole2 = body.newObject("PartDesign::Hole", "Hole001")
hole2.Profile = sketch8
hole2.ThreadType = "None"
hole2.Diameter = 3.797
hole2.DepthType = "Dimension"
hole2.Depth = 15
hole2.DrillPoint = "Angled"
hole2.DrillPointAngle = 118

# Sketch on YZ plane
sketch9 = body.newObject("Sketcher::SketchObject", "Sketch008")
sketch9.AttachmentSupport = (doc.getObject("YZ_Plane"), [""])
sketch9.MapMode = "FlatFace"
sketch9.AttachmentOffset = App.Placement(V(0, 0, 60.1), App.Rotation())
sketch9.addGeometry(Part.Circle(V(0, -4.875, 0), V(0, 0, 1), 28), False)
sketch9.addGeometry(Part.Circle(V(0, -4.875, 0), V(0, 0, 1), 24.5), False)
sketch9.addConstraint(Sketcher.Constraint("Coincident", 1, 3, 0, 3))
sketch9.addConstraint(Sketcher.Constraint("PointOnObject", 0, 3, -2))
sketch9.addConstraint(Sketcher.Constraint("Diameter", 0, Q("56 mm")))
sketch9.addConstraint(Sketcher.Constraint("Diameter", 1, Q("49 mm")))
sketch9.addConstraint(Sketcher.Constraint("DistanceY", 0, 3, -1, 1, Q("4.875 mm")))
pocket6 = body.newObject("PartDesign::Pocket", "Pocket005")
pocket6.Profile = sketch9
pocket6.Length = 3

# Sketch on XY plane
sketch10 = body.newObject("Sketcher::SketchObject", "Sketch009")
sketch10.AttachmentSupport = (doc.getObject("XY_Plane"), [""])
sketch10.MapMode = "FlatFace"
sketch10.addGeometry(Part.LineSegment(V(-33.6, -22.5, 0), V(-13.6, -22.5, 0)), False)
sketch10.addGeometry(Part.LineSegment(V(-13.6, -22.5, 0), V(-13.6, 22.5, 0)), False)
sketch10.addGeometry(Part.LineSegment(V(-13.6, 22.5, 0), V(-33.6, 22.5, 0)), False)
sketch10.addGeometry(Part.LineSegment(V(-33.6, 22.5, 0), V(-33.6, -22.5, 0)), False)
sketch10.addConstraint(Sketcher.Constraint("Coincident", 0, 2, 1, 1))
sketch10.addConstraint(Sketcher.Constraint("Coincident", 1, 2, 2, 1))
sketch10.addConstraint(Sketcher.Constraint("Coincident", 2, 2, 3, 1))
sketch10.addConstraint(Sketcher.Constraint("Coincident", 3, 2, 0, 1))
sketch10.addConstraint(Sketcher.Constraint("Horizontal", 0))
sketch10.addConstraint(Sketcher.Constraint("Vertical", 1))
sketch10.addConstraint(Sketcher.Constraint("Horizontal", 2))
sketch10.addConstraint(Sketcher.Constraint("Vertical", 3))
sketch10.addConstraint(Sketcher.Constraint("DistanceX", 0, 1, 0, 2, Q("20 mm")))
sketch10.addConstraint(Sketcher.Constraint("DistanceY", 1, 1, 1, 2, Q("45 mm")))
sketch10.addConstraint(Sketcher.Constraint("DistanceX", 0, 2, -1, 1, Q("13.6 mm")))
sketch10.addConstraint(Sketcher.Constraint("DistanceY", 0, 2, -1, 1, Q("22.5 mm")))
pocket7 = body.newObject("PartDesign::Pocket", "Pocket006")
pocket7.Profile = sketch10
pocket7.Length = 15

# Sketch on XZ plane
sketch11 = body.newObject("Sketcher::SketchObject", "Sketch010")
sketch11.AttachmentSupport = (doc.getObject("XZ_Plane"), [""])
sketch11.MapMode = "FlatFace"
sketch11.AttachmentOffset = App.Placement(V(0, 0, 41.5), App.Rotation())
sketch11.addGeometry(Part.Circle(V(-48.28, -18, 0), V(0, 0, 1), 3.378), False)
sketch11.addGeometry(Part.Circle(V(-24.64, -18, 0), V(0, 0, 1), 3.378), False)
sketch11.addGeometry(Part.Circle(V(-1, -18, 0), V(0, 0, 1), 3.378), False)
sketch11.addGeometry(Part.Circle(V(22.64, -18, 0), V(0, 0, 1), 3.378), False)
sketch11.addGeometry(Part.Circle(V(46.28, -18, 0), V(0, 0, 1), 3.378), False)
sketch11.addConstraint(Sketcher.Constraint("Equal", 0, 1))
sketch11.addConstraint(Sketcher.Constraint("Equal", 1, 2))
sketch11.addConstraint(Sketcher.Constraint("Equal", 2, 3))
sketch11.addConstraint(Sketcher.Constraint("Equal", 3, 4))
sketch11.addConstraint(Sketcher.Constraint("Horizontal", 0, 3, 1, 3))
sketch11.addConstraint(Sketcher.Constraint("Horizontal", 1, 3, 2, 3))
sketch11.addConstraint(Sketcher.Constraint("Horizontal", 2, 3, 3, 3))
sketch11.addConstraint(Sketcher.Constraint("Horizontal", 3, 3, 4, 3))
sketch11.addConstraint(Sketcher.Constraint("Diameter", 0, Q("6.756 mm")))
sketch11.addConstraint(Sketcher.Constraint("DistanceY", 0, 3, -1, 1, Q("18 mm")))
sketch11.addConstraint(Sketcher.Constraint("DistanceX", 2, 3, -1, 1, Q("1 mm")))
sketch11.addConstraint(Sketcher.Constraint("DistanceX", 0, 3, -1, 1, Q("48.28 mm")))
sketch11.addConstraint(Sketcher.Constraint("DistanceX", 1, 3, -1, 1, Q("24.64 mm")))
sketch11.addConstraint(Sketcher.Constraint("DistanceX", -1, 1, 3, 3, Q("22.64 mm")))
sketch11.addConstraint(Sketcher.Constraint("DistanceX", -1, 1, 4, 3, Q("46.28 mm")))
doc.recompute()
hole3 = body.newObject("PartDesign::Hole", "Hole002")
hole3.Profile = sketch11
hole3.ThreadType = "None"
hole3.Diameter = 6.756
hole3.DepthType = "Dimension"
hole3.Depth = 9
hole3.DrillPoint = "Flat"
hole3.HoleCutType = "Counterbore"
hole3.HoleCutDiameter = 8.1509
hole3.HoleCutDepth = 7.4168
doc.recompute()

mirrored = body.newObject("PartDesign::Mirrored", "Mirrored")
mirrored.Originals = [hole3]
mirrored.MirrorPlane = (doc.getObject("XZ_Plane"), [""])
body.Tip = mirrored

doc.recompute()
